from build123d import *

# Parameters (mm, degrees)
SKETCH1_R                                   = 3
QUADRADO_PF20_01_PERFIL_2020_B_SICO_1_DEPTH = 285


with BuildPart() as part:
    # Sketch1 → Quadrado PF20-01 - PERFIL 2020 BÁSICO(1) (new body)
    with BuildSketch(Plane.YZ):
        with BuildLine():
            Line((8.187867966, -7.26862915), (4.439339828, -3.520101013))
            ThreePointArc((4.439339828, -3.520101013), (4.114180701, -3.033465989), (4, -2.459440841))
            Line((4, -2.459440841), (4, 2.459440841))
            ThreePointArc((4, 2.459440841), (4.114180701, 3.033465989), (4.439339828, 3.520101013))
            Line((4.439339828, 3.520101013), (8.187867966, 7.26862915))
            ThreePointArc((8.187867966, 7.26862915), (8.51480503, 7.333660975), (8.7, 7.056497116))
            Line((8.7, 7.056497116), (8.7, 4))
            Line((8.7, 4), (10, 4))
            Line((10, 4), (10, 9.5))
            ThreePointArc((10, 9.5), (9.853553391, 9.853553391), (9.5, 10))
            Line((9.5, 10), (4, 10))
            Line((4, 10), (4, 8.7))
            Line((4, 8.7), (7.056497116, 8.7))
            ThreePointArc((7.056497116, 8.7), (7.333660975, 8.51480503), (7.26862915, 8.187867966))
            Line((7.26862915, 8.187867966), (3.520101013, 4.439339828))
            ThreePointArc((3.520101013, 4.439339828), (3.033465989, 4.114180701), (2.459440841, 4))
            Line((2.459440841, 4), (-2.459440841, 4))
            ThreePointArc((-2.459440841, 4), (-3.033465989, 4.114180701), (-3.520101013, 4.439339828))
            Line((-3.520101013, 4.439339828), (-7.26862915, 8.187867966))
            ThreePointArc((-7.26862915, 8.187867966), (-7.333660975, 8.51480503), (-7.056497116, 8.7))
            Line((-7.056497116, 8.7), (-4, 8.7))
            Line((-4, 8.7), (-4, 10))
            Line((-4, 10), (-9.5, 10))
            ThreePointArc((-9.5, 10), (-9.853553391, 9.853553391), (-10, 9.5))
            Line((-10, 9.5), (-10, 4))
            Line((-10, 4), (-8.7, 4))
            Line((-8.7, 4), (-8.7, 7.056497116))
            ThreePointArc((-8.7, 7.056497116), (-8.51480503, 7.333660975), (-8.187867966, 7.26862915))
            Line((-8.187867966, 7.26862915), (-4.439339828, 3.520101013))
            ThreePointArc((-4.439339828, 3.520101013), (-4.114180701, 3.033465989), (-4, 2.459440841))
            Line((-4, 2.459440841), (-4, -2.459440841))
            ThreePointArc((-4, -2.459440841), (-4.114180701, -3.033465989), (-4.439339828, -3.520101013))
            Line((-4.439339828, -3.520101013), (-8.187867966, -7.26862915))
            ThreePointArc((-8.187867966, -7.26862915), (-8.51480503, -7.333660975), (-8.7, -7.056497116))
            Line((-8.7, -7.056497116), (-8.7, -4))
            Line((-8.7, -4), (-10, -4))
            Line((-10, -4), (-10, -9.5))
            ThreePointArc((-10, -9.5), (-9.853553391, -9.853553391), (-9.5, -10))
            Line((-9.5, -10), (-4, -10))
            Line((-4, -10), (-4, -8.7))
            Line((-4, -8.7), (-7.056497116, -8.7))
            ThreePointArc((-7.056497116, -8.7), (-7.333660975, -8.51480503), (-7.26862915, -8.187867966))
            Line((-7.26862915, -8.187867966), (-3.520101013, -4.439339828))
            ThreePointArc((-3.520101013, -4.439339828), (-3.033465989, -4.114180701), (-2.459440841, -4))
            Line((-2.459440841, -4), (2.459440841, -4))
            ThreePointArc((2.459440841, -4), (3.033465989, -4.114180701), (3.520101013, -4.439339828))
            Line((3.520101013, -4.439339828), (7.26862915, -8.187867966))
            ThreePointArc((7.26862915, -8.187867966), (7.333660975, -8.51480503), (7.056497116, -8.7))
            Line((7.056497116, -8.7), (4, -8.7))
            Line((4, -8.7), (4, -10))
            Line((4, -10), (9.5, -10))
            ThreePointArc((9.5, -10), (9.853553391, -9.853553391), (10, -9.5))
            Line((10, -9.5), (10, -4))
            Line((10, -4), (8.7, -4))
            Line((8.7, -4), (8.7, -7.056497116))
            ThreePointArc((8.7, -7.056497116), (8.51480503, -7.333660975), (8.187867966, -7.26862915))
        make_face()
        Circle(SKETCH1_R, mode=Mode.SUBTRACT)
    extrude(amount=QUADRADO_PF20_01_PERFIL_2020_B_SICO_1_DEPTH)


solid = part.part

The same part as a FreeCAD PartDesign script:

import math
import FreeCAD as App
import Part
import Sketcher

V = App.Vector
Q = App.Units.Quantity

doc = App.newDocument("Part")
body = doc.addObject("PartDesign::Body", "Body")

sketch1 = doc.addObject("Sketcher::SketchObject", "Sketch")
body.addObject(sketch1)
sketch1.AttachmentSupport = (doc.YZ_Plane, [""])
sketch1.MapMode = "FlatFace"
sketch1.addGeometry(Part.LineSegment(V(8.19, -7.27, 0), V(4.44, -3.52, 0)), False)
sketch1.addGeometry(Part.ArcOfCircle(Part.Circle(V(5.5, -2.46, 0), V(0, 0, 1), 1.5), math.radians(180), math.radians(225)), False)
sketch1.addGeometry(Part.LineSegment(V(4, -2.46, 0), V(4, 2.46, 0)), False)
sketch1.addGeometry(Part.ArcOfCircle(Part.Circle(V(5.5, 2.46, 0), V(0, 0, 1), 1.5), math.radians(135), math.radians(180)), False)
sketch1.addGeometry(Part.LineSegment(V(4.44, 3.52, 0), V(8.19, 7.27, 0)), False)
sketch1.addGeometry(Part.ArcOfCircle(Part.Circle(V(8.4, 7.06, 0), V(0, 0, 1), 0.3), math.radians(0), math.radians(135)), False)
sketch1.addGeometry(Part.LineSegment(V(8.7, 7.06, 0), V(8.7, 4, 0)), False)
sketch1.addGeometry(Part.LineSegment(V(8.7, 4, 0), V(10, 4, 0)), False)
sketch1.addGeometry(Part.LineSegment(V(10, 4, 0), V(10, 9.5, 0)), False)
sketch1.addGeometry(Part.ArcOfCircle(Part.Circle(V(9.5, 9.5, 0), V(0, 0, 1), 0.5), math.radians(0), math.radians(90)), False)
sketch1.addGeometry(Part.LineSegment(V(9.5, 10, 0), V(4, 10, 0)), False)
sketch1.addGeometry(Part.LineSegment(V(4, 10, 0), V(4, 8.7, 0)), False)
sketch1.addGeometry(Part.LineSegment(V(4, 8.7, 0), V(7.06, 8.7, 0)), False)
sketch1.addGeometry(Part.ArcOfCircle(Part.Circle(V(7.06, 8.4, 0), V(0, 0, 1), 0.3), math.radians(-45), math.radians(90)), False)
sketch1.addGeometry(Part.LineSegment(V(7.27, 8.19, 0), V(3.52, 4.44, 0)), False)
sketch1.addGeometry(Part.ArcOfCircle(Part.Circle(V(2.46, 5.5, 0), V(0, 0, 1), 1.5), math.radians(-90), math.radians(-45)), False)
sketch1.addGeometry(Part.LineSegment(V(2.46, 4, 0), V(-2.46, 4, 0)), False)
sketch1.addGeometry(Part.ArcOfCircle(Part.Circle(V(-2.46, 5.5, 0), V(0, 0, 1), 1.5), math.radians(-135), math.radians(-90)), False)
sketch1.addGeometry(Part.LineSegment(V(-3.52, 4.44, 0), V(-7.27, 8.19, 0)), False)
sketch1.addGeometry(Part.ArcOfCircle(Part.Circle(V(-7.06, 8.4, 0), V(0, 0, 1), 0.3), math.radians(90), math.radians(225)), False)
sketch1.addGeometry(Part.LineSegment(V(-7.06, 8.7, 0), V(-4, 8.7, 0)), False)
sketch1.addGeometry(Part.LineSegment(V(-4, 8.7, 0), V(-4, 10, 0)), False)
sketch1.addGeometry(Part.LineSegment(V(-4, 10, 0), V(-9.5, 10, 0)), False)
sketch1.addGeometry(Part.ArcOfCircle(Part.Circle(V(-9.5, 9.5, 0), V(0, 0, 1), 0.5), math.radians(90), math.radians(180)), False)
sketch1.addGeometry(Part.LineSegment(V(-10, 9.5, 0), V(-10, 4, 0)), False)
sketch1.addGeometry(Part.LineSegment(V(-10, 4, 0), V(-8.7, 4, 0)), False)
sketch1.addGeometry(Part.LineSegment(V(-8.7, 4, 0), V(-8.7, 7.06, 0)), False)
sketch1.addGeometry(Part.ArcOfCircle(Part.Circle(V(-8.4, 7.06, 0), V(0, 0, 1), 0.3), math.radians(45), math.radians(180)), False)
sketch1.addGeometry(Part.LineSegment(V(-8.19, 7.27, 0), V(-4.44, 3.52, 0)), False)
sketch1.addGeometry(Part.ArcOfCircle(Part.Circle(V(-5.5, 2.46, 0), V(0, 0, 1), 1.5), math.radians(0), math.radians(45)), False)
sketch1.addGeometry(Part.LineSegment(V(-4, 2.46, 0), V(-4, -2.46, 0)), False)
sketch1.addGeometry(Part.ArcOfCircle(Part.Circle(V(-5.5, -2.46, 0), V(0, 0, 1), 1.5), math.radians(-45), math.radians(0)), False)
sketch1.addGeometry(Part.LineSegment(V(-4.44, -3.52, 0), V(-8.19, -7.27, 0)), False)
sketch1.addGeometry(Part.ArcOfCircle(Part.Circle(V(-8.4, -7.06, 0), V(0, 0, 1), 0.3), math.radians(-180), math.radians(-45)), False)
sketch1.addGeometry(Part.LineSegment(V(-8.7, -7.06, 0), V(-8.7, -4, 0)), False)
sketch1.addGeometry(Part.LineSegment(V(-8.7, -4, 0), V(-10, -4, 0)), False)
sketch1.addGeometry(Part.LineSegment(V(-10, -4, 0), V(-10, -9.5, 0)), False)
sketch1.addGeometry(Part.ArcOfCircle(Part.Circle(V(-9.5, -9.5, 0), V(0, 0, 1), 0.5), math.radians(180), math.radians(270)), False)
sketch1.addGeometry(Part.LineSegment(V(-9.5, -10, 0), V(-4, -10, 0)), False)
sketch1.addGeometry(Part.LineSegment(V(-4, -10, 0), V(-4, -8.7, 0)), False)
sketch1.addGeometry(Part.LineSegment(V(-4, -8.7, 0), V(-7.06, -8.7, 0)), False)
sketch1.addGeometry(Part.ArcOfCircle(Part.Circle(V(-7.06, -8.4, 0), V(0, 0, 1), 0.3), math.radians(135), math.radians(270)), False)
sketch1.addGeometry(Part.LineSegment(V(-7.27, -8.19, 0), V(-3.52, -4.44, 0)), False)
sketch1.addGeometry(Part.ArcOfCircle(Part.Circle(V(-2.46, -5.5, 0), V(0, 0, 1), 1.5), math.radians(90), math.radians(135)), False)
sketch1.addGeometry(Part.LineSegment(V(-2.46, -4, 0), V(2.46, -4, 0)), False)
sketch1.addGeometry(Part.ArcOfCircle(Part.Circle(V(2.46, -5.5, 0), V(0, 0, 1), 1.5), math.radians(45), math.radians(90)), False)
sketch1.addGeometry(Part.LineSegment(V(3.52, -4.44, 0), V(7.27, -8.19, 0)), False)
sketch1.addGeometry(Part.ArcOfCircle(Part.Circle(V(7.06, -8.4, 0), V(0, 0, 1), 0.3), math.radians(-90), math.radians(45)), False)
sketch1.addGeometry(Part.LineSegment(V(7.06, -8.7, 0), V(4, -8.7, 0)), False)
sketch1.addGeometry(Part.LineSegment(V(4, -8.7, 0), V(4, -10, 0)), False)
sketch1.addGeometry(Part.LineSegment(V(4, -10, 0), V(9.5, -10, 0)), False)
sketch1.addGeometry(Part.ArcOfCircle(Part.Circle(V(9.5, -9.5, 0), V(0, 0, 1), 0.5), math.radians(-90), math.radians(0)), False)
sketch1.addGeometry(Part.LineSegment(V(10, -9.5, 0), V(10, -4, 0)), False)
sketch1.addGeometry(Part.LineSegment(V(10, -4, 0), V(8.7, -4, 0)), False)
sketch1.addGeometry(Part.LineSegment(V(8.7, -4, 0), V(8.7, -7.06, 0)), False)
sketch1.addGeometry(Part.ArcOfCircle(Part.Circle(V(8.4, -7.06, 0), V(0, 0, 1), 0.3), math.radians(-135), math.radians(0)), False)
sketch1.addGeometry(Part.Circle(V(0, 0, 0), V(0, 0, 1), 3), False)
sketch1.addConstraint(Sketcher.Constraint("Tangent", 0, 2, 1, 2))
sketch1.addConstraint(Sketcher.Constraint("Tangent", 1, 1, 2, 1))
sketch1.addConstraint(Sketcher.Constraint("Tangent", 2, 2, 3, 2))
sketch1.addConstraint(Sketcher.Constraint("Tangent", 3, 1, 4, 1))
sketch1.addConstraint(Sketcher.Constraint("Tangent", 4, 2, 5, 2))
sketch1.addConstraint(Sketcher.Constraint("Tangent", 5, 1, 6, 1))
sketch1.addConstraint(Sketcher.Constraint("Coincident", 6, 2, 7, 1))
sketch1.addConstraint(Sketcher.Constraint("Coincident", 7, 2, 8, 1))
sketch1.addConstraint(Sketcher.Constraint("Tangent", 8, 2, 9, 1))
sketch1.addConstraint(Sketcher.Constraint("Tangent", 9, 2, 10, 1))
sketch1.addConstraint(Sketcher.Constraint("Coincident", 10, 2, 11, 1))
sketch1.addConstraint(Sketcher.Constraint("Coincident", 11, 2, 12, 1))
sketch1.addConstraint(Sketcher.Constraint("Tangent", 12, 2, 13, 2))
sketch1.addConstraint(Sketcher.Constraint("Tangent", 13, 1, 14, 1))
sketch1.addConstraint(Sketcher.Constraint("Tangent", 14, 2, 15, 2))
sketch1.addConstraint(Sketcher.Constraint("Tangent", 15, 1, 16, 1))
sketch1.addConstraint(Sketcher.Constraint("Tangent", 16, 2, 17, 2))
sketch1.addConstraint(Sketcher.Constraint("Tangent", 17, 1, 18, 1))
sketch1.addConstraint(Sketcher.Constraint("Tangent", 18, 2, 19, 2))
sketch1.addConstraint(Sketcher.Constraint("Tangent", 19, 1, 20, 1))
sketch1.addConstraint(Sketcher.Constraint("Coincident", 20, 2, 21, 1))
sketch1.addConstraint(Sketcher.Constraint("Coincident", 21, 2, 22, 1))
sketch1.addConstraint(Sketcher.Constraint("Tangent", 22, 2, 23, 1))
sketch1.addConstraint(Sketcher.Constraint("Tangent", 23, 2, 24, 1))
sketch1.addConstraint(Sketcher.Constraint("Coincident", 24, 2, 25, 1))
sketch1.addConstraint(Sketcher.Constraint("Coincident", 25, 2, 26, 1))
sketch1.addConstraint(Sketcher.Constraint("Tangent", 26, 2, 27, 2))
sketch1.addConstraint(Sketcher.Constraint("Tangent", 27, 1, 28, 1))
sketch1.addConstraint(Sketcher.Constraint("Tangent", 28, 2, 29, 2))
sketch1.addConstraint(Sketcher.Constraint("Tangent", 29, 1, 30, 1))
sketch1.addConstraint(Sketcher.Constraint("Tangent", 30, 2, 31, 2))
sketch1.addConstraint(Sketcher.Constraint("Tangent", 31, 1, 32, 1))
sketch1.addConstraint(Sketcher.Constraint("Tangent", 32, 2, 33, 2))
sketch1.addConstraint(Sketcher.Constraint("Tangent", 33, 1, 34, 1))
sketch1.addConstraint(Sketcher.Constraint("Coincident", 34, 2, 35, 1))
sketch1.addConstraint(Sketcher.Constraint("Coincident", 35, 2, 36, 1))
sketch1.addConstraint(Sketcher.Constraint("Tangent", 36, 2, 37, 1))
sketch1.addConstraint(Sketcher.Constraint("Tangent", 37, 2, 38, 1))
sketch1.addConstraint(Sketcher.Constraint("Coincident", 38, 2, 39, 1))
sketch1.addConstraint(Sketcher.Constraint("Coincident", 39, 2, 40, 1))
sketch1.addConstraint(Sketcher.Constraint("Tangent", 40, 2, 41, 2))
sketch1.addConstraint(Sketcher.Constraint("Tangent", 41, 1, 42, 1))
sketch1.addConstraint(Sketcher.Constraint("Tangent", 42, 2, 43, 2))
sketch1.addConstraint(Sketcher.Constraint("Tangent", 43, 1, 44, 1))
sketch1.addConstraint(Sketcher.Constraint("Tangent", 44, 2, 45, 2))
sketch1.addConstraint(Sketcher.Constraint("Tangent", 45, 1, 46, 1))
sketch1.addConstraint(Sketcher.Constraint("Tangent", 46, 2, 47, 2))
sketch1.addConstraint(Sketcher.Constraint("Tangent", 47, 1, 48, 1))
sketch1.addConstraint(Sketcher.Constraint("Coincident", 48, 2, 49, 1))
sketch1.addConstraint(Sketcher.Constraint("Coincident", 49, 2, 50, 1))
sketch1.addConstraint(Sketcher.Constraint("Tangent", 50, 2, 51, 1))
sketch1.addConstraint(Sketcher.Constraint("Tangent", 51, 2, 52, 1))
sketch1.addConstraint(Sketcher.Constraint("Coincident", 52, 2, 53, 1))
sketch1.addConstraint(Sketcher.Constraint("Coincident", 53, 2, 54, 1))
sketch1.addConstraint(Sketcher.Constraint("Tangent", 54, 2, 55, 2))
sketch1.addConstraint(Sketcher.Constraint("Tangent", 55, 1, 0, 1))
sketch1.addConstraint(Sketcher.Constraint("Vertical", 2))
sketch1.addConstraint(Sketcher.Constraint("Vertical", 6))
sketch1.addConstraint(Sketcher.Constraint("Horizontal", 7))
sketch1.addConstraint(Sketcher.Constraint("Vertical", 8))
sketch1.addConstraint(Sketcher.Constraint("Horizontal", 10))
sketch1.addConstraint(Sketcher.Constraint("Vertical", 11))
sketch1.addConstraint(Sketcher.Constraint("Horizontal", 12))
sketch1.addConstraint(Sketcher.Constraint("Horizontal", 16))
sketch1.addConstraint(Sketcher.Constraint("Horizontal", 20))
sketch1.addConstraint(Sketcher.Constraint("Vertical", 21))
sketch1.addConstraint(Sketcher.Constraint("Horizontal", 22))
sketch1.addConstraint(Sketcher.Constraint("Vertical", 24))
sketch1.addConstraint(Sketcher.Constraint("Horizontal", 25))
sketch1.addConstraint(Sketcher.Constraint("Vertical", 26))
sketch1.addConstraint(Sketcher.Constraint("Vertical", 30))
sketch1.addConstraint(Sketcher.Constraint("Vertical", 34))
sketch1.addConstraint(Sketcher.Constraint("Horizontal", 35))
sketch1.addConstraint(Sketcher.Constraint("Vertical", 36))
sketch1.addConstraint(Sketcher.Constraint("Horizontal", 38))
sketch1.addConstraint(Sketcher.Constraint("Vertical", 39))
sketch1.addConstraint(Sketcher.Constraint("Horizontal", 40))
sketch1.addConstraint(Sketcher.Constraint("Horizontal", 44))
sketch1.addConstraint(Sketcher.Constraint("Horizontal", 48))
sketch1.addConstraint(Sketcher.Constraint("Vertical", 49))
sketch1.addConstraint(Sketcher.Constraint("Horizontal", 50))
sketch1.addConstraint(Sketcher.Constraint("Vertical", 52))
sketch1.addConstraint(Sketcher.Constraint("Horizontal", 53))
sketch1.addConstraint(Sketcher.Constraint("Vertical", 54))
sketch1.addConstraint(Sketcher.Constraint("Coincident", 56, 3, -1, 1))
sketch1.addConstraint(Sketcher.Constraint("Equal", 1, 3))
sketch1.addConstraint(Sketcher.Constraint("Equal", 5, 13))
sketch1.addConstraint(Sketcher.Constraint("Equal", 3, 15))
sketch1.addConstraint(Sketcher.Constraint("Equal", 15, 17))
sketch1.addConstraint(Sketcher.Constraint("Equal", 13, 19))
sketch1.addConstraint(Sketcher.Constraint("Equal", 9, 23))
sketch1.addConstraint(Sketcher.Constraint("Equal", 19, 27))
sketch1.addConstraint(Sketcher.Constraint("Equal", 17, 29))
sketch1.addConstraint(Sketcher.Constraint("Equal", 29, 31))
sketch1.addConstraint(Sketcher.Constraint("Equal", 27, 33))
sketch1.addConstraint(Sketcher.Constraint("Equal", 23, 37))
sketch1.addConstraint(Sketcher.Constraint("Equal", 33, 41))
sketch1.addConstraint(Sketcher.Constraint("Equal", 31, 43))
sketch1.addConstraint(Sketcher.Constraint("Equal", 43, 45))
sketch1.addConstraint(Sketcher.Constraint("Equal", 41, 47))
sketch1.addConstraint(Sketcher.Constraint("Equal", 37, 51))
sketch1.addConstraint(Sketcher.Constraint("Equal", 47, 55))
sketch1.addConstraint(Sketcher.Constraint("Symmetric", 1, 3, 29, 3, -1, 1))
sketch1.addConstraint(Sketcher.Constraint("Symmetric", 5, 3, 33, 3, -1, 1))
sketch1.addConstraint(Sketcher.Constraint("Symmetric", 9, 3, 37, 3, -1, 1))
sketch1.addConstraint(Sketcher.Constraint("Symmetric", 13, 3, 41, 3, -1, 1))
sketch1.addConstraint(Sketcher.Constraint("Symmetric", 15, 3, 43, 3, -1, 1))
sketch1.addConstraint(Sketcher.Constraint("Symmetric", 19, 3, 47, 3, -1, 1))
sketch1.addConstraint(Sketcher.Constraint("Symmetric", 23, 3, 51, 3, -1, 1))
sketch1.addConstraint(Sketcher.Constraint("Symmetric", 27, 3, 55, 3, -1, 1))
sketch1.addConstraint(Sketcher.Constraint("Symmetric", 13, 3, 19, 3, -2))
sketch1.addConstraint(Sketcher.Constraint("Symmetric", 9, 3, 23, 3, -2))
sketch1.addConstraint(Sketcher.Constraint("Symmetric", 5, 3, 27, 3, -2))
sketch1.addConstraint(Sketcher.Constraint("Perpendicular", 0, 4))
sketch1.addConstraint(Sketcher.Constraint("Parallel", 4, 14))
sketch1.addConstraint(Sketcher.Constraint("Perpendicular", 14, 18))
sketch1.addConstraint(Sketcher.Constraint("Perpendicular", 28, 32))
sketch1.addConstraint(Sketcher.Constraint("Perpendicular", 42, 46))
sketch1.addConstraint(Sketcher.Constraint("Horizontal", 3, 3, 29, 3))
sketch1.addConstraint(Sketcher.Constraint("Horizontal", 7, 2, 15, 1))
sketch1.addConstraint(Sketcher.Constraint("Horizontal", 16, 2, 24, 2))
sketch1.addConstraint(Sketcher.Constraint("Horizontal", 35, 2, 43, 1))
sketch1.addConstraint(Sketcher.Constraint("Horizontal", 44, 2, 52, 2))
sketch1.addConstraint(Sketcher.Constraint("Vertical", 2, 2, 10, 2))
sketch1.addConstraint(Sketcher.Constraint("Vertical", 21, 2, 29, 1))
sketch1.addConstraint(Sketcher.Constraint("Vertical", 30, 2, 38, 2))
sketch1.addConstraint(Sketcher.Constraint("Vertical", 11, 2, 48, 2))
sketch1.addConstraint(Sketcher.Constraint("Equal", 44, 2))
sketch1.addConstraint(Sketcher.Constraint("Equal", 48, 6))
sketch1.addConstraint(Sketcher.Constraint("Equal", 50, 8))
sketch1.addConstraint(Sketcher.Constraint("Equal", 53, 11))
sketch1.addConstraint(Sketcher.Constraint("Diameter", 56, Q("6 mm")))
sketch1.addConstraint(Sketcher.Constraint("Radius", 1, Q("1.5 mm")))
sketch1.addConstraint(Sketcher.Constraint("Radius", 5, Q("0.3 mm")))
sketch1.addConstraint(Sketcher.Constraint("Radius", 9, Q("0.5 mm")))
sketch1.addConstraint(Sketcher.Constraint("DistanceX", 7, 1, 7, 2, Q("1.3 mm")))
sketch1.addConstraint(Sketcher.Constraint("DistanceX", 10, 2, 10, 1, Q("5.5 mm")))
sketch1.addConstraint(Sketcher.Constraint("DistanceX", -1, 1, 1, 1, Q("4 mm")))
sketch1.addConstraint(Sketcher.Constraint("DistanceX", 16, 2, 16, 1, Q("4.918882 mm")))
pad1 = doc.addObject("PartDesign::Pad", "Pad")
body.addObject(pad1)
pad1.Profile = sketch1
pad1.Length = 285

doc.recompute()
